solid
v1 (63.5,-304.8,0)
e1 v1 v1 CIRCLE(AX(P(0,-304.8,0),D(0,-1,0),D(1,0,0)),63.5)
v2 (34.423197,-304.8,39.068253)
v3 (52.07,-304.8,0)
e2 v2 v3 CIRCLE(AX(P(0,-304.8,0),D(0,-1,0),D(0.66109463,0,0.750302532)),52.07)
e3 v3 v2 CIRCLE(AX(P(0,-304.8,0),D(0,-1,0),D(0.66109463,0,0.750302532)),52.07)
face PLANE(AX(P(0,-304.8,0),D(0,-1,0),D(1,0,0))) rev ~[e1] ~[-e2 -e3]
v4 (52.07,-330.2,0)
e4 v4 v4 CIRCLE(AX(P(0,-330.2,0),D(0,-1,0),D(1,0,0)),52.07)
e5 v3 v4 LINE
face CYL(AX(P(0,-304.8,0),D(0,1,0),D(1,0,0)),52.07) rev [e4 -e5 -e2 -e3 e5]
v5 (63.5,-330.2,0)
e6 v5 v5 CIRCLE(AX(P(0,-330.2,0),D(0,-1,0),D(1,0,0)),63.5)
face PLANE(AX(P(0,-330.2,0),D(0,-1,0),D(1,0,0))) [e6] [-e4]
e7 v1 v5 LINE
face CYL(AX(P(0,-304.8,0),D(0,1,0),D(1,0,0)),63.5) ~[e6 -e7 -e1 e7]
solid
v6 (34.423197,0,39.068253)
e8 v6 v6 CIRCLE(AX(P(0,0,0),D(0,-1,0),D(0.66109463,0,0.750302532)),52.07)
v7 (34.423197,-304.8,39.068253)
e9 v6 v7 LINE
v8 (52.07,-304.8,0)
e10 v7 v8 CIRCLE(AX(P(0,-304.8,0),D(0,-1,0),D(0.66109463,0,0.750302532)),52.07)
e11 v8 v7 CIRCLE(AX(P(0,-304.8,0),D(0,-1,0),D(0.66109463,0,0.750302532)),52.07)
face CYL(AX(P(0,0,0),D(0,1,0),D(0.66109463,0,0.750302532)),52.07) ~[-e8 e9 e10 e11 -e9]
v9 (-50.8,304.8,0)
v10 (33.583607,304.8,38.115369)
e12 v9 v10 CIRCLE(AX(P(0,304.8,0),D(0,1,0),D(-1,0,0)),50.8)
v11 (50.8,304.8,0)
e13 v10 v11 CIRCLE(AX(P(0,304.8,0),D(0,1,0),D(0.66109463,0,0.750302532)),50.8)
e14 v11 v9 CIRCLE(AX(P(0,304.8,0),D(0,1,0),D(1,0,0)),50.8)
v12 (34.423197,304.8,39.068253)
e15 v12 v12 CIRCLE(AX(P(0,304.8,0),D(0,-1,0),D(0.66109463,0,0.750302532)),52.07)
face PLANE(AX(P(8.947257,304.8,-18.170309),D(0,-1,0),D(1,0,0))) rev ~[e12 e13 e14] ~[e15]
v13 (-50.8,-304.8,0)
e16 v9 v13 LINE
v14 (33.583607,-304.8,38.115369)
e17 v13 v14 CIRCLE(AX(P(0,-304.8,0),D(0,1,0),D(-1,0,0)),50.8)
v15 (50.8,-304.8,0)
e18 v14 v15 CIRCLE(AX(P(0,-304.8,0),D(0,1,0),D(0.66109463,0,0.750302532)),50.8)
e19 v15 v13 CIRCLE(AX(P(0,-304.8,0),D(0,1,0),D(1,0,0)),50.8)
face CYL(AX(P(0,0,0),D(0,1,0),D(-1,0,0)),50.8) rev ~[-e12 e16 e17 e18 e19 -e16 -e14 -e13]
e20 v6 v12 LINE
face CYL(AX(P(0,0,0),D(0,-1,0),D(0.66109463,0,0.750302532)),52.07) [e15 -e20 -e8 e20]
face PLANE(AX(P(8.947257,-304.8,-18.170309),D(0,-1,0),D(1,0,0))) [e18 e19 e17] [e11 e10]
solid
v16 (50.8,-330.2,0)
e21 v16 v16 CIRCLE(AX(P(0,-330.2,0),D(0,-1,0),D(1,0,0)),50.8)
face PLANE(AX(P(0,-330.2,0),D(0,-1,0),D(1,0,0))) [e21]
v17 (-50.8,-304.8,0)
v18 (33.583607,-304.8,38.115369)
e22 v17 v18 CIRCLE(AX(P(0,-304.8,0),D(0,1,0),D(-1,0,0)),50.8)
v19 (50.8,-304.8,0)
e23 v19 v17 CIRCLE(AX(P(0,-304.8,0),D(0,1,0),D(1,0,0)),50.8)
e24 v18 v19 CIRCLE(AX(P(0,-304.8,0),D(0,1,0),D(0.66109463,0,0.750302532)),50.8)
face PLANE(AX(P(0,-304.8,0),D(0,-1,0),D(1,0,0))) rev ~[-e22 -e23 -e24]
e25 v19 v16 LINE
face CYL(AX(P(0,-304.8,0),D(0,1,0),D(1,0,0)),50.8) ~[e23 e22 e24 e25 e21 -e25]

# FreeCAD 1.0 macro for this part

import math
import FreeCAD as App
import Part
import Sketcher

V = App.Vector
Q = App.Units.Quantity

doc = App.newDocument("Part")
body = doc.addObject("PartDesign::Body", "Body")
body.AllowCompound = True

# Sketch on XZ plane
sketch1 = doc.addObject("Sketcher::SketchObject", "Sketch")
body.addObject(sketch1)
sketch1.AttachmentSupport = (doc.XZ_Plane, [""])
sketch1.MapMode = "FlatFace"
sketch1.addGeometry([
    Part.Circle(V(0, 0, 0), V(0, 0, 1), 52),
    Part.ArcOfCircle(Part.Circle(V(0, 0, 0), V(0, 0, 1), 51), math.radians(180), math.radians(360)),
    Part.ArcOfCircle(Part.Circle(V(0, 0, 0), V(0, 0, 1), 51), math.radians(49), math.radians(180)),
    Part.ArcOfCircle(Part.Circle(V(0, 0, 0), V(0, 0, 1), 51), math.radians(0), math.radians(49)),
], False)
sketch1.addConstraint([
    Sketcher.Constraint("Tangent", 1, 1, 2, 2),
    Sketcher.Constraint("Tangent", 2, 1, 3, 2),
    Sketcher.Constraint("Tangent", 3, 1, 1, 2),
    Sketcher.Constraint("Coincident", 0, 3, -1, 1),
    Sketcher.Constraint("Coincident", 1, 3, -1, 1),
    Sketcher.Constraint("PointOnObject", 1, 1, -1),
    Sketcher.Constraint("PointOnObject", 3, 1, -1),
    Sketcher.Constraint("Radius", 1, Q("2 in")),
    Sketcher.Constraint("Diameter", 0, Q("4.1 in")),
    Sketcher.Constraint("DistanceY", -1, 1, 2, 1, 38.115369),
])
pad1 = doc.addObject("PartDesign::Pad", "Pad")
body.addObject(pad1)
pad1.Profile = sketch1
pad1.Length = Q("24 in")
pad1.Midplane = True

# Sketch on XZ plane
sketch2 = doc.addObject("Sketcher::SketchObject", "Sketch001")
body.addObject(sketch2)
sketch2.AttachmentSupport = (doc.XZ_Plane, [""])
sketch2.MapMode = "FlatFace"
sketch2.AttachmentOffset = App.Placement(V(0, 0, 12 * 25.4), App.Rotation())
sketch2.addGeometry([
    Part.Circle(V(0, 0, 0), V(0, 0, 1), 64),
    Part.Circle(V(0, 0, 0), V(0, 0, 1), 52),
    Part.Circle(V(0, 0, 0), V(0, 0, 1), 51),
], False)
sketch2.addConstraint([
    Sketcher.Constraint("Coincident", 0, 3, -1, 1),
    Sketcher.Constraint("Coincident", 1, 3, -1, 1),
    Sketcher.Constraint("Coincident", 2, 3, -1, 1),
    Sketcher.Constraint("Diameter", 0, Q("5 in")),
    Sketcher.Constraint("Diameter", 2, Q("4 in")),
    Sketcher.Constraint("Diameter", 1, Q("4.1 in")),
])
pad2 = doc.addObject("PartDesign::Pad", "Pad001")
body.addObject(pad2)
pad2.Profile = sketch2
pad2.Length = Q("1 in")

doc.recompute()
